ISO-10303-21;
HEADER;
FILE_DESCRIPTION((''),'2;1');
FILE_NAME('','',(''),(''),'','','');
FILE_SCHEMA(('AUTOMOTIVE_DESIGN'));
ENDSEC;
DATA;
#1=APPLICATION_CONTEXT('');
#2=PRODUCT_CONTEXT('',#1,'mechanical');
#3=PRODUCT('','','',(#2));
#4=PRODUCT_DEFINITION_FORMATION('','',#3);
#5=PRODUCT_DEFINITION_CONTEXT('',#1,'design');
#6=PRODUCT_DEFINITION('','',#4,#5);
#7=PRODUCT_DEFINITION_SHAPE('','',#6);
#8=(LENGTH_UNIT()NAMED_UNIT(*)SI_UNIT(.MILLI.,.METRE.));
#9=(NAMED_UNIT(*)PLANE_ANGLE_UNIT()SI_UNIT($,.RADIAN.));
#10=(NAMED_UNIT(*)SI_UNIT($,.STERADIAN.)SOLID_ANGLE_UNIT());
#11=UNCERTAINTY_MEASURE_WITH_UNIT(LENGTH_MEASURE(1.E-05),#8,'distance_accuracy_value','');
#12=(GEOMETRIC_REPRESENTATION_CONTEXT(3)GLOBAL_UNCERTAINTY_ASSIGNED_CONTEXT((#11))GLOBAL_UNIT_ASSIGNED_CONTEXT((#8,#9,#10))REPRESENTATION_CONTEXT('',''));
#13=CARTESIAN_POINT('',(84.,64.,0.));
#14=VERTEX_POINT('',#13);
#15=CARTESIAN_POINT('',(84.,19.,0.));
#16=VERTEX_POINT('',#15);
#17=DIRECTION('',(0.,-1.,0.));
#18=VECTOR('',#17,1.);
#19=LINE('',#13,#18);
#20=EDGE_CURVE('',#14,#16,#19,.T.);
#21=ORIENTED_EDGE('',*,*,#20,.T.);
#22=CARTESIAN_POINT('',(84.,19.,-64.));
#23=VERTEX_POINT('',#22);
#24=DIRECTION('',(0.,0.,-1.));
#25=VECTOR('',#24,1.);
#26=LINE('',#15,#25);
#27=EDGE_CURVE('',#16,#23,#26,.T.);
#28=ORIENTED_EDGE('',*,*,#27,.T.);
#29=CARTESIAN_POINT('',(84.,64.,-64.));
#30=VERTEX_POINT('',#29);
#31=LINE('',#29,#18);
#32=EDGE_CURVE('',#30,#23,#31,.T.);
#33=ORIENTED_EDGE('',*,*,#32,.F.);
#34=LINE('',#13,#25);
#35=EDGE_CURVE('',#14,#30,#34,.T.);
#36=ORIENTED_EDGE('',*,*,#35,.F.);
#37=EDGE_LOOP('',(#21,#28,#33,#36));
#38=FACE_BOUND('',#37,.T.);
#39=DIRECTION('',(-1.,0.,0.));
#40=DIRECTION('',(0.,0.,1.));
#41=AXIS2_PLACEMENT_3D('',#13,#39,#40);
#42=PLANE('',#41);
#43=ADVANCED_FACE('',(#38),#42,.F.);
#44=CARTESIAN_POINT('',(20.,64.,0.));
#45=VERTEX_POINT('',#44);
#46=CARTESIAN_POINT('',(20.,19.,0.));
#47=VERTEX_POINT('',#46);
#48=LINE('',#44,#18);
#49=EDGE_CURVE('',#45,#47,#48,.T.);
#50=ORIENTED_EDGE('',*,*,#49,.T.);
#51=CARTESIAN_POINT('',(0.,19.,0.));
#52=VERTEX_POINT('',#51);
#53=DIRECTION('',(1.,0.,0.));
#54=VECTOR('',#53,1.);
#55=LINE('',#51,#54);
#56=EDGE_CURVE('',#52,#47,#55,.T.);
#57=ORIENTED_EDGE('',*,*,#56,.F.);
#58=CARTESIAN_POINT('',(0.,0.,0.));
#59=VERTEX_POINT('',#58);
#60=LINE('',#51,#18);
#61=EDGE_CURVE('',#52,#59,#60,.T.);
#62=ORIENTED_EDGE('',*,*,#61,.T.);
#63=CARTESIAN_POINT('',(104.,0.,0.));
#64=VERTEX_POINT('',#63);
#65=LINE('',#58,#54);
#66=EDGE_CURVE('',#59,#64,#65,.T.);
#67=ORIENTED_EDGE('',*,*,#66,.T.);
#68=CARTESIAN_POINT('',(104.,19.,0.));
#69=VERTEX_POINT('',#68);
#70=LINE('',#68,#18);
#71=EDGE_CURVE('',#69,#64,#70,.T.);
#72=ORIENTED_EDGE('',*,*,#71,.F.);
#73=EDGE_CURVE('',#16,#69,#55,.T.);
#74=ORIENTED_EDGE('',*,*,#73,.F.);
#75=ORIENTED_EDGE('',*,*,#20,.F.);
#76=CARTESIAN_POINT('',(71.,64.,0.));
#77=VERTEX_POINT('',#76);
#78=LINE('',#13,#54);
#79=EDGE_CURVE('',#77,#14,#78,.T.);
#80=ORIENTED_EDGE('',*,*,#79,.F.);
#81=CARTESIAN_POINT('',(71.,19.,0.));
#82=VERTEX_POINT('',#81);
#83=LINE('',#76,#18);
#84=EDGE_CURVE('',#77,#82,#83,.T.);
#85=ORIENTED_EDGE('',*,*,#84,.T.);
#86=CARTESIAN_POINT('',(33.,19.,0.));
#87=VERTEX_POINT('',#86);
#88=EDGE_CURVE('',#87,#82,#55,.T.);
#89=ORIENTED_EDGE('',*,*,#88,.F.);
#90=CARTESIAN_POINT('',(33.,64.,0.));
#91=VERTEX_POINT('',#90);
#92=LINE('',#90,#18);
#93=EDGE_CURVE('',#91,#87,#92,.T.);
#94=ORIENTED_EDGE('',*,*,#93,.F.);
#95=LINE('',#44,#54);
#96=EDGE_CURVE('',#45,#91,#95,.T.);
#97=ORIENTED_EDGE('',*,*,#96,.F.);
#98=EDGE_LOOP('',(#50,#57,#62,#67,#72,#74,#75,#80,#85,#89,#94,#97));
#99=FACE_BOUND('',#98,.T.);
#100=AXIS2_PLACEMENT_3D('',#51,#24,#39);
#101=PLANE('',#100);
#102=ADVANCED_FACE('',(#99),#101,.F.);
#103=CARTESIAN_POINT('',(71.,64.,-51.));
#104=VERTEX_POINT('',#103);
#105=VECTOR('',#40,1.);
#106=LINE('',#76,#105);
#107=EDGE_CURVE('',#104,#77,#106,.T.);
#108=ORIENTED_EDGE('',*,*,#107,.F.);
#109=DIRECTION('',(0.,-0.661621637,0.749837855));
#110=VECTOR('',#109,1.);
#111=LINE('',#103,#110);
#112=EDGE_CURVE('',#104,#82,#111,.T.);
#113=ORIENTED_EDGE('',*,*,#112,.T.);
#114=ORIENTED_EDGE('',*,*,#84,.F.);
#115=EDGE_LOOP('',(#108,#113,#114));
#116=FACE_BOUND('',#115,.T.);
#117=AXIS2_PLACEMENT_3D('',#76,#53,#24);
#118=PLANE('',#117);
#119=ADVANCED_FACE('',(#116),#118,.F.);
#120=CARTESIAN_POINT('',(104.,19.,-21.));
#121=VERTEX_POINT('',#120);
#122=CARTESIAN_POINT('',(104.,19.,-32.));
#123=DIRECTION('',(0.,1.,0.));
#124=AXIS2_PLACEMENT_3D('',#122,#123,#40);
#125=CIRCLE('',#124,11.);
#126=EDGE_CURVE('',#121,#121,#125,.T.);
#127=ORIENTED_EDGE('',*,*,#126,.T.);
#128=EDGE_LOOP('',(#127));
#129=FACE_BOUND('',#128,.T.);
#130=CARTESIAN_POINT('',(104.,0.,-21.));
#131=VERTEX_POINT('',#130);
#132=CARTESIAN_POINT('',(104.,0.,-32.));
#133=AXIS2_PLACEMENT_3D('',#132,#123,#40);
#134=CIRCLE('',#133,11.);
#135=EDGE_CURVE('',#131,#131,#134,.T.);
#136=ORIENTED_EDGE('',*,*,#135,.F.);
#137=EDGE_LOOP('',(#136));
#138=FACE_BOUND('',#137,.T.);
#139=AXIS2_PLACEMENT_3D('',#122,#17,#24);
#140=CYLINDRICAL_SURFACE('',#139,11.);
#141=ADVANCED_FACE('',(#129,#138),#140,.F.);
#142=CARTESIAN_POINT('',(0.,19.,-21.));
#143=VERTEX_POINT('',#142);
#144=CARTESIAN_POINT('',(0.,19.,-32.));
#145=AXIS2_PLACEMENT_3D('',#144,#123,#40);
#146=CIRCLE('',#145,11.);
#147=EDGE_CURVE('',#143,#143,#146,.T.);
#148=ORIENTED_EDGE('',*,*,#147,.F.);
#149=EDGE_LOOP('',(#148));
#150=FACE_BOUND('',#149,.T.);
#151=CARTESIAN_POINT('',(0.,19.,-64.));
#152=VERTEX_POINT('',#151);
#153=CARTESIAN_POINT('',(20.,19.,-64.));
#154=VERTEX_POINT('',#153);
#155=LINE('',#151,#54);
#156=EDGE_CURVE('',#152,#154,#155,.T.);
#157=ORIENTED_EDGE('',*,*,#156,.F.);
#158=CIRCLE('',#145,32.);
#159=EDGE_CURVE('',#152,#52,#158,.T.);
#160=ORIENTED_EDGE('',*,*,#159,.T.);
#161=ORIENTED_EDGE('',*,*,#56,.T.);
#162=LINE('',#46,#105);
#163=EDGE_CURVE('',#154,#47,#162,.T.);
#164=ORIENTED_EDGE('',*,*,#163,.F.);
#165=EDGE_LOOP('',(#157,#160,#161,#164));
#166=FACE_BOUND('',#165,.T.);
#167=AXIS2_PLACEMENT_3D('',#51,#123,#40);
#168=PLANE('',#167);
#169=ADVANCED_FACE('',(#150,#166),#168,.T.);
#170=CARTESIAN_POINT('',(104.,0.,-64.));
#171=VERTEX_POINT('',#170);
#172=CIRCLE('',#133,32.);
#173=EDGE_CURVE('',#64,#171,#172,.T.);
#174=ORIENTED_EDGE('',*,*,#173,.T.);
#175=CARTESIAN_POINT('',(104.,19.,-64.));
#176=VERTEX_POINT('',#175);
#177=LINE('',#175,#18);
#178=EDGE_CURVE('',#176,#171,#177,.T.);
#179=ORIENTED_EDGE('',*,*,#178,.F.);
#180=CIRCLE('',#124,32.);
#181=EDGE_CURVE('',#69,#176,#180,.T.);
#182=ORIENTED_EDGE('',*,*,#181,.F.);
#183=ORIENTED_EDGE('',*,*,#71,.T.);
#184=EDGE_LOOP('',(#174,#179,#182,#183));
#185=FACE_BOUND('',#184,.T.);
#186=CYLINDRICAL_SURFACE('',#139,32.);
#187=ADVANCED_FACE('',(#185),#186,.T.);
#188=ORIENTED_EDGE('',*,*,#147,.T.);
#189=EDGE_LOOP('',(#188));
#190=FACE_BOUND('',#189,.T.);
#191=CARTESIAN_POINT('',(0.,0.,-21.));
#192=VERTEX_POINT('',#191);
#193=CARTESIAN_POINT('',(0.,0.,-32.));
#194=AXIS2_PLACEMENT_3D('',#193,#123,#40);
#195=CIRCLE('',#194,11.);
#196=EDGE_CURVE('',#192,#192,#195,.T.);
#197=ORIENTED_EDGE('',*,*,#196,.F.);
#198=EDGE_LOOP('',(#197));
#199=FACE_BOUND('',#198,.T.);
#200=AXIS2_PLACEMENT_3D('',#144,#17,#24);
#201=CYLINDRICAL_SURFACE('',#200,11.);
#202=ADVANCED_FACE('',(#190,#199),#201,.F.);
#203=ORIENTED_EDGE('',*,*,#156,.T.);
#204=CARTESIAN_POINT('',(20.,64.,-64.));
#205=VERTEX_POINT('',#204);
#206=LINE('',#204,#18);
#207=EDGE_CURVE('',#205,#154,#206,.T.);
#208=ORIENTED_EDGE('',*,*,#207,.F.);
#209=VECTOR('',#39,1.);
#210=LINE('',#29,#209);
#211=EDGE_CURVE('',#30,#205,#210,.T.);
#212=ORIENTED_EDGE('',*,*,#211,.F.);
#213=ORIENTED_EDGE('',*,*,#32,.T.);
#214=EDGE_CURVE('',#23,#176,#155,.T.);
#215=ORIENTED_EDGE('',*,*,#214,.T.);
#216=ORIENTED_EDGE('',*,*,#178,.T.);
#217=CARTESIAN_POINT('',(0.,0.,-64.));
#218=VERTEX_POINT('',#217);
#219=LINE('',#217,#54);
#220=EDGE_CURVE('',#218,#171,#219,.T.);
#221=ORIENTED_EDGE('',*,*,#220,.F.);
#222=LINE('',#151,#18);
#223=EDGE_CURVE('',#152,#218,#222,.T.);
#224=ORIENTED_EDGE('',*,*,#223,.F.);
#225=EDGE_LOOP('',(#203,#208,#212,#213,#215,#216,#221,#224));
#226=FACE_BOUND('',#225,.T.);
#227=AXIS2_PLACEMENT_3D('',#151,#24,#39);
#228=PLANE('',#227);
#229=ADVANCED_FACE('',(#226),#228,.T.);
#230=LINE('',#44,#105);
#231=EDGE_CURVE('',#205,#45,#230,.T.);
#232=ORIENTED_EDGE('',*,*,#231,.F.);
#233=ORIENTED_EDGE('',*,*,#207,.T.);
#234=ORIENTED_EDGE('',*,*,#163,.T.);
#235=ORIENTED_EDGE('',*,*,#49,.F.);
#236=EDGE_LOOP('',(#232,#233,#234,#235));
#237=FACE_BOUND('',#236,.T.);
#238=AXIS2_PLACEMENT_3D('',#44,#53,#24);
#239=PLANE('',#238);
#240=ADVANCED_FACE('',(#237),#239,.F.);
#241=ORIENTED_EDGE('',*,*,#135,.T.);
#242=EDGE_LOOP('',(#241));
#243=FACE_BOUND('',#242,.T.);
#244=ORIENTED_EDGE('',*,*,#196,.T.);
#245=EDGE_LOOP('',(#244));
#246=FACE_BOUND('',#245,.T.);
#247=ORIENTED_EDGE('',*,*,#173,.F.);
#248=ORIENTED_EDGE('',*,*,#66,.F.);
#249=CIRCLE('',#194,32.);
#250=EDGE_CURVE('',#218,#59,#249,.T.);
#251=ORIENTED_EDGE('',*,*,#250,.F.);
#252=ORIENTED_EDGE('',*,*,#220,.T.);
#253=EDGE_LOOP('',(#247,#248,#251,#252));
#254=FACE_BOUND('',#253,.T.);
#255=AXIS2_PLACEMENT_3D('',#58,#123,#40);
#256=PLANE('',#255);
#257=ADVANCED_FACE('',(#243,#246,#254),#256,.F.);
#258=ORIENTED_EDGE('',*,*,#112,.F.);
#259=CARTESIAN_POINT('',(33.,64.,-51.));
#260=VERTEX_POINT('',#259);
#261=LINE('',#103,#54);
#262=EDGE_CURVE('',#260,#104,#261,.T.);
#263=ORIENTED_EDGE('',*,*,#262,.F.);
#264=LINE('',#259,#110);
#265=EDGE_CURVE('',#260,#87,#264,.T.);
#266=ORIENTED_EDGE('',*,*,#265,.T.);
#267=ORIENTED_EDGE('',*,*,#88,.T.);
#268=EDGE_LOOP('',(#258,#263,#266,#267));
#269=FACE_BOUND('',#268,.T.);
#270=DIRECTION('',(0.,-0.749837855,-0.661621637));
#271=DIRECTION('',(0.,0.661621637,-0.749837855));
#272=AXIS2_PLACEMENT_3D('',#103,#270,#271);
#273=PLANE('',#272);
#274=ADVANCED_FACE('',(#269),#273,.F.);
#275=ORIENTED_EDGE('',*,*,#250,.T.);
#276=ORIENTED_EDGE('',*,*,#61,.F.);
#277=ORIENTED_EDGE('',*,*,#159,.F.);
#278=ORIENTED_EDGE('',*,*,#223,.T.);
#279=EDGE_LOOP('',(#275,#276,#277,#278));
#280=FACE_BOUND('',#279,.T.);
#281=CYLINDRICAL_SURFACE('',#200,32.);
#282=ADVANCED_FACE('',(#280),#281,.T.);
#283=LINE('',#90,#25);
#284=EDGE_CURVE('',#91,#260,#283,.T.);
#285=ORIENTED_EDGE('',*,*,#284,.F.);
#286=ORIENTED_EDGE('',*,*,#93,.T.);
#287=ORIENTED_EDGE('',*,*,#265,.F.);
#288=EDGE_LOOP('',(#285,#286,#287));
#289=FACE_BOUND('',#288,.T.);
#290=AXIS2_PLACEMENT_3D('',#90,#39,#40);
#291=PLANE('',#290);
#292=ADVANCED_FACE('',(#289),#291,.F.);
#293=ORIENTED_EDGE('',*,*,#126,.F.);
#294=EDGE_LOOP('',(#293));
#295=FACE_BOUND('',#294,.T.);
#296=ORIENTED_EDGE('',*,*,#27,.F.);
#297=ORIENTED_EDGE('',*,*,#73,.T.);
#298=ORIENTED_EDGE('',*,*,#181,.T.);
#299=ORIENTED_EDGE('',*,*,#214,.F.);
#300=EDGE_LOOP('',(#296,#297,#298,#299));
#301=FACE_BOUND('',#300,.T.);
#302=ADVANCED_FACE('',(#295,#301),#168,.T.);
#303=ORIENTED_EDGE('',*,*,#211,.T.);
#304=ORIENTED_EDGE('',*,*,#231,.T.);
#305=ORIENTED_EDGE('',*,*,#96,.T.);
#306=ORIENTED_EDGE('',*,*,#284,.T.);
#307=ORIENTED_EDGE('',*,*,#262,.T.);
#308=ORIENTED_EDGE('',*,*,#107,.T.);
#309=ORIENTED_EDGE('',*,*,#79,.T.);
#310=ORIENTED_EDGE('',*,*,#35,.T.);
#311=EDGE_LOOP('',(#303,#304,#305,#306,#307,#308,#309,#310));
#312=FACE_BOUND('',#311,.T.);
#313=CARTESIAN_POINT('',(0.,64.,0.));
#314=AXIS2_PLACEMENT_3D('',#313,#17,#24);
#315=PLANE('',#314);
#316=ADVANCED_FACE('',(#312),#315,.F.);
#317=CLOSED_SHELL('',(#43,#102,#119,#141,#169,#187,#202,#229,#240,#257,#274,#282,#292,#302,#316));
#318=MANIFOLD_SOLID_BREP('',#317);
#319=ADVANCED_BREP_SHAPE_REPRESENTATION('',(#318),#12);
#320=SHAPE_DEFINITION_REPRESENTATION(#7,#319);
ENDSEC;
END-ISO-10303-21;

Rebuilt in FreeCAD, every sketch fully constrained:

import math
import FreeCAD as App
import Part
import Sketcher
from FreeCAD import Vector
Q = App.Units.Quantity


def add_polygon(sketch, points):
    """Adds a closed chain of lines whose ends are joined by coincident constraints."""
    first, n = sketch.GeometryCount, len(points)
    for a, b in zip(points, points[1:] + points[:1]):
        sketch.addGeometry(Part.LineSegment(App.Vector(*a, 0), App.Vector(*b, 0)), False)
    for i in range(n):
        sketch.addConstraint(Sketcher.Constraint("Coincident", first + i, 2, first + (i + 1) % n, 1))

doc = App.newDocument("Part")
body = doc.addObject("PartDesign::Body", "Body")

# Sketch on XZ plane
sketch1 = doc.addObject("Sketcher::SketchObject", "Sketch")
body.addObject(sketch1)
sketch1.AttachmentSupport = (doc.XZ_Plane, [""])
sketch1.MapMode = "FlatFace"
sketch1.addGeometry(Part.LineSegment(Vector(0, 0, 0), Vector(104, 0, 0)), False)
sketch1.addGeometry(Part.ArcOfCircle(Part.Circle(Vector(104, -32, 0), Vector(0, 0, 1), 32), math.radians(-90), math.radians(90)), False)
sketch1.addGeometry(Part.LineSegment(Vector(104, -64, 0), Vector(0, -64, 0)), False)
sketch1.addGeometry(Part.ArcOfCircle(Part.Circle(Vector(0, -32, 0), Vector(0, 0, 1), 32), math.radians(90), math.radians(270)), False)
sketch1.addGeometry(Part.Circle(Vector(0, -32, 0), Vector(0, 0, 1), 11), False)
sketch1.addGeometry(Part.Circle(Vector(104, -32, 0), Vector(0, 0, 1), 11), False)
sketch1.addConstraint(Sketcher.Constraint("Tangent", 0, 2, 1, 2))
sketch1.addConstraint(Sketcher.Constraint("Tangent", 1, 1, 2, 1))
sketch1.addConstraint(Sketcher.Constraint("Tangent", 2, 2, 3, 2))
sketch1.addConstraint(Sketcher.Constraint("Tangent", 3, 1, 0, 1))
sketch1.addConstraint(Sketcher.Constraint("Horizontal", 0))
sketch1.addConstraint(Sketcher.Constraint("Horizontal", 2))
sketch1.addConstraint(Sketcher.Constraint("Coincident", 3, 1, -1, 1))
sketch1.addConstraint(Sketcher.Constraint("Coincident", 4, 3, 3, 3))
sketch1.addConstraint(Sketcher.Constraint("Coincident", 5, 3, 1, 3))
sketch1.addConstraint(Sketcher.Constraint("Equal", 4, 5))
sketch1.addConstraint(Sketcher.Constraint("Diameter", 4, Q("22 mm")))
sketch1.addConstraint(Sketcher.Constraint("Radius", 1, Q("32 mm")))
sketch1.addConstraint(Sketcher.Constraint("DistanceX", 0, 1, 0, 2, Q("104 mm")))
pad1 = doc.addObject("PartDesign::Pad", "Pad")
body.addObject(pad1)
pad1.Profile = sketch1
pad1.Length = 19
pad1.Reversed = True

# Sketch on XZ plane
sketch2 = doc.addObject("Sketcher::SketchObject", "Sketch001")
body.addObject(sketch2)
sketch2.AttachmentSupport = (doc.XZ_Plane, [""])
sketch2.MapMode = "FlatFace"
sketch2.AttachmentOffset = App.Placement(Vector(0, 0, -19), App.Rotation())
add_polygon(sketch2, [(84, 0), (84, -64), (20, -64), (20, 0), (33, 0), (33, -51), (71, -51), (71, 0)])  # lines 0-7
sketch2.addConstraint(Sketcher.Constraint("Vertical", 0))
sketch2.addConstraint(Sketcher.Constraint("Horizontal", 1))
sketch2.addConstraint(Sketcher.Constraint("Vertical", 2))
sketch2.addConstraint(Sketcher.Constraint("Horizontal", 3))
sketch2.addConstraint(Sketcher.Constraint("Vertical", 4))
sketch2.addConstraint(Sketcher.Constraint("Horizontal", 5))
sketch2.addConstraint(Sketcher.Constraint("Vertical", 6))
sketch2.addConstraint(Sketcher.Constraint("Horizontal", 7))
sketch2.addConstraint(Sketcher.Constraint("PointOnObject", 2, 2, -1))
sketch2.addConstraint(Sketcher.Constraint("PointOnObject", 6, 2, -1))
sketch2.addConstraint(Sketcher.Constraint("Equal", 3, 7))
sketch2.addConstraint(Sketcher.Constraint("Equal", 1, 0))
sketch2.addConstraint(Sketcher.Constraint("DistanceX", 1, 2, 1, 1, Q("64 mm")))
sketch2.addConstraint(Sketcher.Constraint("DistanceX", 3, 1, 3, 2, Q("13 mm")))
sketch2.addConstraint(Sketcher.Constraint("DistanceY", 4, 2, 4, 1, Q("51 mm")))
sketch2.addConstraint(Sketcher.Constraint("DistanceX", -1, 1, 0, 2, Q("84 mm")))
pad2 = doc.addObject("PartDesign::Pad", "Pad001")
body.addObject(pad2)
pad2.Profile = sketch2
pad2.Length = 45
pad2.Reversed = True

# Sketch on YZ plane
sketch3 = doc.addObject("Sketcher::SketchObject", "Sketch002")
body.addObject(sketch3)
sketch3.AttachmentSupport = (doc.YZ_Plane, [""])
sketch3.MapMode = "FlatFace"
sketch3.AttachmentOffset = App.Placement(Vector(0, 0, 33), App.Rotation())
add_polygon(sketch3, [(64, -51), (19, 0), (19, -51)])  # lines 0-2
sketch3.addConstraint(Sketcher.Constraint("Vertical", 1))
sketch3.addConstraint(Sketcher.Constraint("Horizontal", 2))
sketch3.addConstraint(Sketcher.Constraint("PointOnObject", 0, 2, -1))
sketch3.addConstraint(Sketcher.Constraint("DistanceX", 2, 1, 2, 2, Q("45 mm")))
sketch3.addConstraint(Sketcher.Constraint("DistanceY", 1, 2, 1, 1, Q("51 mm")))
sketch3.addConstraint(Sketcher.Constraint("DistanceX", -1, 1, 0, 2, Q("19 mm")))
pad3 = doc.addObject("PartDesign::Pad", "Pad002")
body.addObject(pad3)
pad3.Profile = sketch3
pad3.Length = 38

doc.recompute()
